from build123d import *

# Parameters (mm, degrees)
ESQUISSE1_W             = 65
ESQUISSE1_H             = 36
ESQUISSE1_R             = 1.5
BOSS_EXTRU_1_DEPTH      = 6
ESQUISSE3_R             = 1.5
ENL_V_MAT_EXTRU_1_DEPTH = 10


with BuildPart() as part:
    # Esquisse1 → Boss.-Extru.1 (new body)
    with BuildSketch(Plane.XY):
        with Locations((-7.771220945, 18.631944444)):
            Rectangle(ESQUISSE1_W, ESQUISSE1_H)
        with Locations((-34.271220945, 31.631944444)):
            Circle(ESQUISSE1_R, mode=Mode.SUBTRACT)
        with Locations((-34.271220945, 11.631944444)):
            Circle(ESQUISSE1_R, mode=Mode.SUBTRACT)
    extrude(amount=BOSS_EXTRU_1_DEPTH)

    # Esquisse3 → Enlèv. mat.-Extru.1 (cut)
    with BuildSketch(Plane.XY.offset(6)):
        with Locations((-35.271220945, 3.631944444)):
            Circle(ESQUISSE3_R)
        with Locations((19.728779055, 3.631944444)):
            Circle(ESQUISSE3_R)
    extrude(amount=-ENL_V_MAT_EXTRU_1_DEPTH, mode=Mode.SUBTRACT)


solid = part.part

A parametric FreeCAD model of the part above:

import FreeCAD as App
import Part
import Sketcher
Q = App.Units.Quantity

doc = App.newDocument("Part")
body = doc.addObject("PartDesign::Body", "Body")

sketch1 = body.newObject("Sketcher::SketchObject", "Sketch")
sketch1.AttachmentSupport = (doc.getObject("XY_Plane"), [""])
sketch1.MapMode = "FlatFace"
sketch1.addGeometry([
    Part.LineSegment(App.Vector(-40.3, 36.6, 0), App.Vector(-40.3, 0.6, 0)),
    Part.LineSegment(App.Vector(-40.3, 0.6, 0), App.Vector(24.7, 0.6, 0)),
    Part.LineSegment(App.Vector(24.7, 0.6, 0), App.Vector(24.7, 36.6, 0)),
    Part.LineSegment(App.Vector(24.7, 36.6, 0), App.Vector(-40.3, 36.6, 0)),
    Part.Circle(App.Vector(-34.3, 11.6, 0), App.Vector(0, 0, 1), 1.5),
    Part.Circle(App.Vector(-34.3, 31.6, 0), App.Vector(0, 0, 1), 1.5),
], False)
sketch1.addConstraint([
    Sketcher.Constraint("Coincident", 0, 2, 1, 1),
    Sketcher.Constraint("Coincident", 1, 2, 2, 1),
    Sketcher.Constraint("Coincident", 2, 2, 3, 1),
    Sketcher.Constraint("Coincident", 3, 2, 0, 1),
    Sketcher.Constraint("Vertical", 0),
    Sketcher.Constraint("Horizontal", 1),
    Sketcher.Constraint("Vertical", 2),
    Sketcher.Constraint("Horizontal", 3),
    Sketcher.Constraint("Equal", 4, 5),
    Sketcher.Constraint("Vertical", 4, 3, 5, 3),
    Sketcher.Constraint("Diameter", 4, Q("3 mm")),
    Sketcher.Constraint("DistanceX", 1, 1, 1, 2, Q("65 mm")),
    Sketcher.Constraint("DistanceY", 0, 2, 0, 1, Q("36 mm")),
    Sketcher.Constraint("DistanceY", 4, 3, 5, 3, Q("20 mm")),
    Sketcher.Constraint("DistanceX", 0, 2, 4, 3, Q("6 mm")),
    Sketcher.Constraint("DistanceY", 0, 2, 4, 3, Q("11 mm")),
    Sketcher.Constraint("DistanceX", 4, 3, -1, 1, Q("34.271221 mm")),
    Sketcher.Constraint("DistanceY", -1, 1, 4, 3, Q("11.631944 mm")),
])
pad1 = body.newObject("PartDesign::Pad", "Pad")
pad1.Profile = sketch1
pad1.Length = 6

sketch2 = body.newObject("Sketcher::SketchObject", "Sketch001")
sketch2.AttachmentSupport = (doc.getObject("XY_Plane"), [""])
sketch2.MapMode = "FlatFace"
sketch2.AttachmentOffset = App.Placement(App.Vector(0, 0, 6), App.Rotation())
sketch2.addGeometry([
    Part.Circle(App.Vector(-35.3, 3.6, 0), App.Vector(0, 0, 1), 1.5),
    Part.Circle(App.Vector(19.7, 3.6, 0), App.Vector(0, 0, 1), 1.5),
], False)
sketch2.addConstraint([
    Sketcher.Constraint("Equal", 0, 1),
    Sketcher.Constraint("Horizontal", 0, 3, 1, 3),
    Sketcher.Constraint("Diameter", 0, Q("3 mm")),
    Sketcher.Constraint("DistanceX", 0, 3, 1, 3, Q("55 mm")),
    Sketcher.Constraint("DistanceX", 0, 3, -1, 1, Q("35.271221 mm")),
    Sketcher.Constraint("DistanceY", -1, 1, 0, 3, Q("3.631944 mm")),
])
pocket1 = body.newObject("PartDesign::Pocket", "Pocket")
pocket1.Profile = sketch2
pocket1.Length = 10

doc.recompute()
